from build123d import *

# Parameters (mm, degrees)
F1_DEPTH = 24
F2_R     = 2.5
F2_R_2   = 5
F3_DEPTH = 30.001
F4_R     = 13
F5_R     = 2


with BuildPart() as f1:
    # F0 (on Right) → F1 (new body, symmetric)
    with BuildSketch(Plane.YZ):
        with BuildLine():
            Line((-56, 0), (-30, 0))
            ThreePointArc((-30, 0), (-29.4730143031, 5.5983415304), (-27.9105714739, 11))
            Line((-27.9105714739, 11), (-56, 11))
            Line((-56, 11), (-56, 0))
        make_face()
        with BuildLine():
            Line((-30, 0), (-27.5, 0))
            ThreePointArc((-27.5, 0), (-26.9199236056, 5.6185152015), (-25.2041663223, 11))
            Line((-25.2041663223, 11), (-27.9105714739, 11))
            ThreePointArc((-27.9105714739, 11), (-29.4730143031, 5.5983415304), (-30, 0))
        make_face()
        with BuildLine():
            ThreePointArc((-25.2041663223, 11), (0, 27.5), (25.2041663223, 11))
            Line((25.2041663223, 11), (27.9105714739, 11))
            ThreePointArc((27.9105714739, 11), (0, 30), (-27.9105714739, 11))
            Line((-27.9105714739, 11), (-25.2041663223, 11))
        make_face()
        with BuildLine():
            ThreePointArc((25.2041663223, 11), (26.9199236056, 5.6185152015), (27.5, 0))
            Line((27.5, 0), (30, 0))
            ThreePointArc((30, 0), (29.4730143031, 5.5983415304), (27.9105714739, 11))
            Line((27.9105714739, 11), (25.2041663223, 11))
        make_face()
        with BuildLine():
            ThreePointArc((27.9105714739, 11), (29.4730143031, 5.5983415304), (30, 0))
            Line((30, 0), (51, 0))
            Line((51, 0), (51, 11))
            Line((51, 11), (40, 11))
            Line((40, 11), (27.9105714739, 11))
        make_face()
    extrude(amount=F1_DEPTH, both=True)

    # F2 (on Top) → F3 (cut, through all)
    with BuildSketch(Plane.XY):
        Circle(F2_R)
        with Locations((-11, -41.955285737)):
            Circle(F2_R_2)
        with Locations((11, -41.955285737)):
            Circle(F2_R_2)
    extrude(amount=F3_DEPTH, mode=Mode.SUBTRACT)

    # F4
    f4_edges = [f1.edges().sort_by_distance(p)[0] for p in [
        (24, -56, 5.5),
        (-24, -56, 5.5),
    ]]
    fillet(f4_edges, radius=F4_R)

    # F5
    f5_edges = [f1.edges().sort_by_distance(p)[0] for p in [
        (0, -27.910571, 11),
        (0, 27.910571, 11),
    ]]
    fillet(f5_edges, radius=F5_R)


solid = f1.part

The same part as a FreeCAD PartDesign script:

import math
import FreeCAD as App
import Part
import Sketcher


def edges_at(feature, points):
    """Names of the edges that pass closest to the given points."""
    edges = feature.Shape.Edges
    near = lambda p: min(range(len(edges)), key=lambda i: edges[i].distToShape(Part.Vertex(*p))[0])
    return sorted({f"Edge{near(p) + 1}" for p in points})

doc = App.newDocument("Part")
body = doc.addObject("PartDesign::Body", "Body")

# Sketch on YZ plane
sketch1 = doc.addObject("Sketcher::SketchObject", "Sketch")
body.addObject(sketch1)
sketch1.AttachmentSupport = (doc.YZ_Plane, [""])
sketch1.MapMode = "FlatFace"
sketch1.addGeometry([
    Part.LineSegment(App.Vector(-56, 11, 0), App.Vector(-56, 0, 0)),  # 0
    Part.LineSegment(App.Vector(-56, 0, 0), App.Vector(-28, 0, 0)),  # 1
    Part.ArcOfCircle(Part.Circle(App.Vector(0, 0, 0), App.Vector(0, 0, 1), 28), math.radians(156), math.radians(180)),  # 2
    Part.ArcOfCircle(Part.Circle(App.Vector(0, 0, 0), App.Vector(0, 0, 1), 28), math.radians(24), math.radians(156)),  # 3
    Part.ArcOfCircle(Part.Circle(App.Vector(0, 0, 0), App.Vector(0, 0, 1), 28), math.radians(0), math.radians(24)),  # 4
    Part.LineSegment(App.Vector(28, 0, 0), App.Vector(51, 0, 0)),  # 5
    Part.LineSegment(App.Vector(51, 0, 0), App.Vector(51, 11, 0)),  # 6
    Part.LineSegment(App.Vector(51, 11, 0), App.Vector(28, 11, 0)),  # 7
    Part.ArcOfCircle(Part.Circle(App.Vector(0, 0, 0), App.Vector(0, 0, 1), 30), math.radians(22), math.radians(158)),  # 8
    Part.LineSegment(App.Vector(-28, 11, 0), App.Vector(-56, 11, 0)),  # 9
], False)
sketch1.addConstraint([
    Sketcher.Constraint("Coincident", 0, 2, 1, 1),
    Sketcher.Constraint("Coincident", 1, 2, 2, 2),
    Sketcher.Constraint("Tangent", 2, 1, 3, 2),
    Sketcher.Constraint("Tangent", 3, 1, 4, 2),
    Sketcher.Constraint("Coincident", 4, 1, 5, 1),
    Sketcher.Constraint("Coincident", 5, 2, 6, 1),
    Sketcher.Constraint("Coincident", 6, 2, 7, 1),
    Sketcher.Constraint("Coincident", 7, 2, 8, 1),
    Sketcher.Constraint("Coincident", 8, 2, 9, 1),
    Sketcher.Constraint("Coincident", 9, 2, 0, 1),
    Sketcher.Constraint("Vertical", 0),
    Sketcher.Constraint("Horizontal", 1),
    Sketcher.Constraint("Horizontal", 5),
    Sketcher.Constraint("Vertical", 6),
    Sketcher.Constraint("Horizontal", 7),
    Sketcher.Constraint("Horizontal", 9),
    Sketcher.Constraint("Coincident", 2, 3, -1, 1),
    Sketcher.Constraint("Coincident", 4, 3, -1, 1),
    Sketcher.Constraint("Coincident", 8, 3, -1, 1),
    Sketcher.Constraint("PointOnObject", 0, 2, -1),
    Sketcher.Constraint("PointOnObject", 4, 1, -1),
    Sketcher.Constraint("Horizontal", 2, 1, 3, 1),
    Sketcher.Constraint("Horizontal", 3, 1, 6, 2),
    Sketcher.Constraint("Horizontal", 7, 2, 8, 2),
    Sketcher.Constraint("Radius", 8, 30.0),
    Sketcher.Constraint("Radius", 2, 27.5),
    Sketcher.Constraint("DistanceY", 0, 2, 0, 1, 11.0),
    Sketcher.Constraint("DistanceX", 1, 1, 1, 2, 28.5),
    Sketcher.Constraint("DistanceX", 5, 1, 5, 2, 23.5),
])
pad1 = doc.addObject("PartDesign::Pad", "Pad")
body.addObject(pad1)
pad1.Profile = sketch1
pad1.Length = 48
pad1.Midplane = True

# Sketch on XY plane
sketch2 = doc.addObject("Sketcher::SketchObject", "Sketch001")
body.addObject(sketch2)
sketch2.AttachmentSupport = (doc.XY_Plane, [""])
sketch2.MapMode = "FlatFace"
sketch2.addGeometry([
    Part.Circle(App.Vector(0, 0, 0), App.Vector(0, 0, 1), 2.5),
    Part.Circle(App.Vector(-11, -42, 0), App.Vector(0, 0, 1), 5),
    Part.Circle(App.Vector(11, -42, 0), App.Vector(0, 0, 1), 5),
], False)
sketch2.addConstraint([
    Sketcher.Constraint("Coincident", 0, 3, -1, 1),
    Sketcher.Constraint("Equal", 1, 2),
    Sketcher.Constraint("Symmetric", 1, 3, 2, 3, -2),
    Sketcher.Constraint("Diameter", 0, 5.0),
    Sketcher.Constraint("Diameter", 1, 10.0),
    Sketcher.Constraint("DistanceX", 1, 3, -1, 1, 11.0),
    Sketcher.Constraint("DistanceY", 1, 3, -1, 1, 41.955286),
])
pocket1 = doc.addObject("PartDesign::Pocket", "Pocket")
body.addObject(pocket1)
pocket1.Profile = sketch2
pocket1.Type = "ThroughAll"
pocket1.Reversed = True
doc.recompute()

fillet = doc.addObject("PartDesign::Fillet", "Fillet")
body.addObject(fillet)
fillet.Base = (pocket1, edges_at(pocket1, [(24, -56, 5.5), (-24, -56, 5.5)]))
fillet.Radius = 13
doc.recompute()

fillet2 = doc.addObject("PartDesign::Fillet", "Fillet001")
body.addObject(fillet2)
fillet2.Base = (fillet, edges_at(fillet, [(0, -27.911, 11), (0, 27.911, 11)]))
fillet2.Radius = 2

doc.recompute()
